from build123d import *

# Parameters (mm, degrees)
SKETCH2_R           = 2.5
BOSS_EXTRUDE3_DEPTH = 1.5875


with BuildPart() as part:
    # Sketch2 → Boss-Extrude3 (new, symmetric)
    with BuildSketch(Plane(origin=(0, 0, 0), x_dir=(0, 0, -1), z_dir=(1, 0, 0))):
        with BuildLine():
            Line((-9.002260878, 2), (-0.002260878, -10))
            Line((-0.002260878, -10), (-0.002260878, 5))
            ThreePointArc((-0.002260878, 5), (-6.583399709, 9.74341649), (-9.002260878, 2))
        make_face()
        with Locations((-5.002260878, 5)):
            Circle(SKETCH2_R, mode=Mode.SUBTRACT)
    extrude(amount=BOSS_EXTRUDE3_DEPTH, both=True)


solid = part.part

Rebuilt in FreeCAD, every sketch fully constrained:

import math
import FreeCAD as App
import Part
import Sketcher

V = App.Vector
Q = App.Units.Quantity

doc = App.newDocument("Part")
params = doc.addObject("Spreadsheet::Sheet", "Params")
for row, (alias, value) in enumerate([
    ("sketch1_diameter", "5 mm"),
    ("sketch1_radius", "5 mm"),
    ("sketch1_width", "15 mm"),
    ("pad1_length", "3.175 mm"),
], start=1):
    params.set(f"A{row}", alias)
    params.set(f"B{row}", "=" + value)
    params.setAlias(f"B{row}", alias)

body = doc.addObject("PartDesign::Body", "Body")

# Sketch on YZ plane
sketch1 = body.newObject("Sketcher::SketchObject", "Sketch")
sketch1.AttachmentSupport = (doc.getObject("YZ_Plane"), [""])
sketch1.MapMode = "FlatFace"
sketch1.addGeometry([
    Part.LineSegment(V(2, 9, 0), V(-10, 0, 0)),
    Part.LineSegment(V(-10, 0, 0), V(5, 0, 0)),
    Part.ArcOfCircle(Part.Circle(V(5, 5, 0), V(0, 0, 1), 5), math.radians(-90), math.radians(127)),
    Part.Circle(V(5, 5, 0), V(0, 0, 1), 2.5),
], False)
sketch1.addConstraint([
    Sketcher.Constraint("Coincident", 0, 2, 1, 1),
    Sketcher.Constraint("Tangent", 1, 2, 2, 1),
    Sketcher.Constraint("Tangent", 2, 2, 0, 1),
    Sketcher.Constraint("Horizontal", 1),
    Sketcher.Constraint("Coincident", 3, 3, 2, 3),
    Sketcher.Constraint("Diameter", 3, Q("5 mm")),
    Sketcher.Constraint("Radius", 2, Q("5 mm")),
    Sketcher.Constraint("DistanceX", 1, 1, 1, 2, Q("15 mm")),
    Sketcher.Constraint("DistanceX", -1, 1, 2, 3, Q("5 mm")),
    Sketcher.Constraint("DistanceY", -1, 1, 2, 3, Q("5.002261 mm")),
])
sketch1.setExpression("Constraints[5]", "Params.sketch1_diameter")
sketch1.setExpression("Constraints[6]", "Params.sketch1_radius")
sketch1.setExpression("Constraints[7]", "Params.sketch1_width")
pad1 = body.newObject("PartDesign::Pad", "Pad")
pad1.Profile = sketch1
pad1.setExpression("Length", "Params.pad1_length")
pad1.Midplane = True

doc.recompute()
